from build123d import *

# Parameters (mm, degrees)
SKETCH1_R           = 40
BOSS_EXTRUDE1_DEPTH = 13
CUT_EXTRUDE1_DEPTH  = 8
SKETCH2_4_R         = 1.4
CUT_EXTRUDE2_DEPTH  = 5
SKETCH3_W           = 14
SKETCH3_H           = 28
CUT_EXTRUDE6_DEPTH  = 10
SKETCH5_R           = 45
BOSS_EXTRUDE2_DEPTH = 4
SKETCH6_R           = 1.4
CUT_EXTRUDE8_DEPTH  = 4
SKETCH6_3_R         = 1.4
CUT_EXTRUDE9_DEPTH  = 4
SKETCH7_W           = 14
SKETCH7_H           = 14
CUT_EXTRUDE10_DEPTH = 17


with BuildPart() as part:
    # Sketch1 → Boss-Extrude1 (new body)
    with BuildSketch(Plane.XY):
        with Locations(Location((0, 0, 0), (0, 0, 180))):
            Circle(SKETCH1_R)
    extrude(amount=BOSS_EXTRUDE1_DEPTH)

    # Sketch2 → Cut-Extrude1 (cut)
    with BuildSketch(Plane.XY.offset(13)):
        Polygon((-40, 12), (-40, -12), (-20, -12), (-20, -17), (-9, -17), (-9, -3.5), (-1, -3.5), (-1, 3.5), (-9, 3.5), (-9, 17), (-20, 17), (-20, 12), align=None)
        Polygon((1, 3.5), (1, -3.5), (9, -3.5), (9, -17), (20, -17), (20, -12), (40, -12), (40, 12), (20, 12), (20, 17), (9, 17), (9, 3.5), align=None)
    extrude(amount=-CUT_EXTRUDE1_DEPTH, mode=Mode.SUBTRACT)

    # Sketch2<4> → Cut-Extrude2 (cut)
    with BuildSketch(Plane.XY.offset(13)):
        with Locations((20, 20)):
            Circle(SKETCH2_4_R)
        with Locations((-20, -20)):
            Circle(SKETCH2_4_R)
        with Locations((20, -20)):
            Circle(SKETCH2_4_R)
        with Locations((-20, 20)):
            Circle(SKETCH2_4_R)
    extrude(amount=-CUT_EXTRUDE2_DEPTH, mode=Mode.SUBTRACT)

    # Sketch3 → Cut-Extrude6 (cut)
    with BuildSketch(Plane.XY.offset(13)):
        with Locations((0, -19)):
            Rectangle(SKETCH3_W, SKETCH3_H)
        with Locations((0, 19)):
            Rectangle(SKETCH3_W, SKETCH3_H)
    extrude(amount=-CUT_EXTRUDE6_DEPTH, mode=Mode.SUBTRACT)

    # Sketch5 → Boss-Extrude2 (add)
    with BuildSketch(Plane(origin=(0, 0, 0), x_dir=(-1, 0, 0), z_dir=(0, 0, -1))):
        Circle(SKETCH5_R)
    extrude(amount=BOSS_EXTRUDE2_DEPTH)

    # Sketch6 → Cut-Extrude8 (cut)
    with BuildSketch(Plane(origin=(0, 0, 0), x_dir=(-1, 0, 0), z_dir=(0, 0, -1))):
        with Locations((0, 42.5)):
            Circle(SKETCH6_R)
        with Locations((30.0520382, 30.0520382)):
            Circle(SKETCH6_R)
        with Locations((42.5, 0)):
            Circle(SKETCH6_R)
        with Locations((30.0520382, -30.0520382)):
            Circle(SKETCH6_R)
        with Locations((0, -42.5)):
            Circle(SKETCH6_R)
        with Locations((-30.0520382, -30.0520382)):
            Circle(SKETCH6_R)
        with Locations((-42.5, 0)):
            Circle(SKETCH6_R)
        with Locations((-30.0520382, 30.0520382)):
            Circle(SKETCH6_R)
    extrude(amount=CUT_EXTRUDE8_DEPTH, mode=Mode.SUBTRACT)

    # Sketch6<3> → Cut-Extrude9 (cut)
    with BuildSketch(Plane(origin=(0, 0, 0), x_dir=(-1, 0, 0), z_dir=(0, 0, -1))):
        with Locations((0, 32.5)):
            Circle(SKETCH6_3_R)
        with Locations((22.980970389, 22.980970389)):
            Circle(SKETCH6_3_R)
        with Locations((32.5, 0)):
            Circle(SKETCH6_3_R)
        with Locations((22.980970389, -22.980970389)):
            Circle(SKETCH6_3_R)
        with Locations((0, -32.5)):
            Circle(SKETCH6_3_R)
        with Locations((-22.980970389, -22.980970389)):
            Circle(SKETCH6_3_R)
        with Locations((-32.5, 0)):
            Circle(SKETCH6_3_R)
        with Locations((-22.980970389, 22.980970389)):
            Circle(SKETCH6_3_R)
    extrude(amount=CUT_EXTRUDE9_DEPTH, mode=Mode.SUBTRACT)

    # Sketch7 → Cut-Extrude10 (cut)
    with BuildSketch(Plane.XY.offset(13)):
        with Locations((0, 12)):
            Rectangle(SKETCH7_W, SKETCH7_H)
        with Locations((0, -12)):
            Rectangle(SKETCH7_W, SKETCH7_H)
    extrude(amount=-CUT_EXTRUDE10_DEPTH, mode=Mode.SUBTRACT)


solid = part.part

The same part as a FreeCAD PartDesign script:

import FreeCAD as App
import Part
import Sketcher
from FreeCAD import Vector


def add_polygon(sketch, points):
    """Adds a closed chain of lines whose ends are joined by coincident constraints."""
    first, n = sketch.GeometryCount, len(points)
    for a, b in zip(points, points[1:] + points[:1]):
        sketch.addGeometry(Part.LineSegment(App.Vector(*a, 0), App.Vector(*b, 0)), False)
    for i in range(n):
        sketch.addConstraint(Sketcher.Constraint("Coincident", first + i, 2, first + (i + 1) % n, 1))

doc = App.newDocument("Part")
body = doc.addObject("PartDesign::Body", "Body")

# Sketch on XY plane
sketch1 = doc.addObject("Sketcher::SketchObject", "Sketch")
body.addObject(sketch1)
sketch1.AttachmentSupport = (doc.XY_Plane, [""])
sketch1.MapMode = "FlatFace"
sketch1.addGeometry(Part.Circle(Vector(0, 0, 0), Vector(0, 0, 1), 40), False)
sketch1.addConstraint([
    Sketcher.Constraint("Coincident", 0, 3, -1, 1),
    Sketcher.Constraint("Diameter", 0, 80.0),
])
pad1 = doc.addObject("PartDesign::Pad", "Pad")
body.addObject(pad1)
pad1.Profile = sketch1
pad1.Length = 13

# Sketch on XY plane
sketch2 = doc.addObject("Sketcher::SketchObject", "Sketch001")
body.addObject(sketch2)
sketch2.AttachmentSupport = (doc.XY_Plane, [""])
sketch2.MapMode = "FlatFace"
sketch2.AttachmentOffset = App.Placement(Vector(0, 0, 13), App.Rotation())
add_polygon(sketch2, [(-40, 12), (-40, -12), (-20, -12), (-20, -17), (-9, -17), (-9, -4), (-1, -4), (-1, 4), (-9, 4), (-9, 17), (-20, 17), (-20, 12)])  # lines 0-11
add_polygon(sketch2, [(1, 4), (1, -4), (9, -4), (9, -17), (20, -17), (20, -12), (40, -12), (40, 12), (20, 12), (20, 17), (9, 17), (9, 4)])  # lines 12-23
sketch2.addConstraint([
    Sketcher.Constraint("Vertical", 0),
    Sketcher.Constraint("Horizontal", 1),
    Sketcher.Constraint("Vertical", 2),
    Sketcher.Constraint("Horizontal", 3),
    Sketcher.Constraint("Vertical", 4),
    Sketcher.Constraint("Horizontal", 5),
    Sketcher.Constraint("Vertical", 6),
    Sketcher.Constraint("Horizontal", 7),
    Sketcher.Constraint("Vertical", 8),
    Sketcher.Constraint("Horizontal", 9),
    Sketcher.Constraint("Vertical", 10),
    Sketcher.Constraint("Horizontal", 11),
    Sketcher.Constraint("Vertical", 12),
    Sketcher.Constraint("Horizontal", 13),
    Sketcher.Constraint("Vertical", 14),
    Sketcher.Constraint("Horizontal", 15),
    Sketcher.Constraint("Vertical", 16),
    Sketcher.Constraint("Horizontal", 17),
    Sketcher.Constraint("Vertical", 18),
    Sketcher.Constraint("Horizontal", 19),
    Sketcher.Constraint("Vertical", 20),
    Sketcher.Constraint("Horizontal", 21),
    Sketcher.Constraint("Vertical", 22),
    Sketcher.Constraint("Horizontal", 23),
    Sketcher.Constraint("Symmetric", 6, 2, 12, 2, -1, 1),
    Sketcher.Constraint("Symmetric", 8, 2, 14, 2, -1, 1),
    Sketcher.Constraint("Symmetric", 10, 2, 16, 2, -1, 1),
    Sketcher.Constraint("Symmetric", 0, 2, 18, 2, -1, 1),
    Sketcher.Constraint("Symmetric", 2, 2, 20, 2, -1, 1),
    Sketcher.Constraint("Symmetric", 4, 2, 22, 2, -1, 1),
    Sketcher.Constraint("Symmetric", 4, 2, 13, 2, -2),
    Sketcher.Constraint("Symmetric", 2, 2, 15, 2, -2),
    Sketcher.Constraint("Horizontal", 1, 2, 16, 2),
    Sketcher.Constraint("DistanceX", 1, 1, 1, 2, 20.0),
    Sketcher.Constraint("DistanceX", 3, 1, 3, 2, 11.0),
    Sketcher.Constraint("DistanceX", 5, 1, 5, 2, 8.0),
    Sketcher.Constraint("DistanceY", 0, 2, 0, 1, 24.0),
    Sketcher.Constraint("DistanceY", 2, 2, 2, 1, 5.0),
    Sketcher.Constraint("DistanceY", 6, 1, 6, 2, 7.0),
    Sketcher.Constraint("DistanceX", 0, 2, -1, 1, 40.0),
])
pocket1 = doc.addObject("PartDesign::Pocket", "Pocket")
body.addObject(pocket1)
pocket1.Profile = sketch2
pocket1.Length = 8

# Sketch on XY plane
sketch3 = doc.addObject("Sketcher::SketchObject", "Sketch002")
body.addObject(sketch3)
sketch3.AttachmentSupport = (doc.XY_Plane, [""])
sketch3.MapMode = "FlatFace"
sketch3.AttachmentOffset = App.Placement(Vector(0, 0, 13), App.Rotation())
sketch3.addGeometry([
    Part.Circle(Vector(20, 20, 0), Vector(0, 0, 1), 1.4),
    Part.Circle(Vector(-20, -20, 0), Vector(0, 0, 1), 1.4),
    Part.Circle(Vector(20, -20, 0), Vector(0, 0, 1), 1.4),
    Part.Circle(Vector(-20, 20, 0), Vector(0, 0, 1), 1.4),
], False)
sketch3.addConstraint([
    Sketcher.Constraint("Equal", 0, 1),
    Sketcher.Constraint("Equal", 1, 2),
    Sketcher.Constraint("Equal", 2, 3),
    Sketcher.Constraint("Symmetric", 0, 3, 1, 3, -1, 1),
    Sketcher.Constraint("Symmetric", 2, 3, 3, 3, -1, 1),
    Sketcher.Constraint("Symmetric", 1, 3, 2, 3, -2),
    Sketcher.Constraint("Diameter", 0, 2.8),
    Sketcher.Constraint("DistanceX", -1, 1, 0, 3, 20.0),
    Sketcher.Constraint("DistanceY", -1, 1, 0, 3, 20.0),
])
pocket2 = doc.addObject("PartDesign::Pocket", "Pocket001")
body.addObject(pocket2)
pocket2.Profile = sketch3
pocket2.Length = 5

# Sketch on XY plane
sketch4 = doc.addObject("Sketcher::SketchObject", "Sketch003")
body.addObject(sketch4)
sketch4.AttachmentSupport = (doc.XY_Plane, [""])
sketch4.MapMode = "FlatFace"
sketch4.AttachmentOffset = App.Placement(Vector(0, 0, 13), App.Rotation())
add_polygon(sketch4, [(-7, -5), (-7, -33), (7, -33), (7, -5)])  # lines 0-3
add_polygon(sketch4, [(-7, 33), (-7, 5), (7, 5), (7, 33)])  # lines 4-7
sketch4.addConstraint([
    Sketcher.Constraint("Vertical", 0),
    Sketcher.Constraint("Horizontal", 1),
    Sketcher.Constraint("Vertical", 2),
    Sketcher.Constraint("Horizontal", 3),
    Sketcher.Constraint("Vertical", 4),
    Sketcher.Constraint("Horizontal", 5),
    Sketcher.Constraint("Vertical", 6),
    Sketcher.Constraint("Horizontal", 7),
    Sketcher.Constraint("Symmetric", 2, 2, 4, 2, -1, 1),
    Sketcher.Constraint("Symmetric", 0, 2, 6, 2, -1, 1),
    Sketcher.Constraint("Vertical", 3, 2, 4, 2),
    Sketcher.Constraint("DistanceX", 1, 1, 1, 2, 14.0),
    Sketcher.Constraint("DistanceY", 0, 2, 0, 1, 28.0),
    Sketcher.Constraint("DistanceY", 0, 2, -1, 1, 33.0),
])
pocket3 = doc.addObject("PartDesign::Pocket", "Pocket002")
body.addObject(pocket3)
pocket3.Profile = sketch4
pocket3.Length = 10

# Sketch on XY plane
sketch5 = doc.addObject("Sketcher::SketchObject", "Sketch004")
body.addObject(sketch5)
sketch5.AttachmentSupport = (doc.XY_Plane, [""])
sketch5.MapMode = "FlatFace"
sketch5.addGeometry(Part.Circle(Vector(0, 0, 0), Vector(0, 0, 1), 45), False)
sketch5.addConstraint([
    Sketcher.Constraint("Coincident", 0, 3, -1, 1),
    Sketcher.Constraint("Diameter", 0, 90.0),
])
pad2 = doc.addObject("PartDesign::Pad", "Pad001")
body.addObject(pad2)
pad2.Profile = sketch5
pad2.Length = 4
pad2.Reversed = True

# Sketch on XY plane
sketch6 = doc.addObject("Sketcher::SketchObject", "Sketch005")
body.addObject(sketch6)
sketch6.AttachmentSupport = (doc.XY_Plane, [""])
sketch6.MapMode = "FlatFace"
sketch6.addGeometry([
    Part.Circle(Vector(0, 42.5, 0), Vector(0, 0, 1), 1.4),  # 0
    Part.Circle(Vector(-30.1, 30.1, 0), Vector(0, 0, 1), 1.4),  # 1
    Part.Circle(Vector(-42.5, 0, 0), Vector(0, 0, 1), 1.4),  # 2
    Part.Circle(Vector(-30.1, -30.1, 0), Vector(0, 0, 1), 1.4),  # 3
    Part.Circle(Vector(0, -42.5, 0), Vector(0, 0, 1), 1.4),  # 4
    Part.Circle(Vector(30.1, -30.1, 0), Vector(0, 0, 1), 1.4),  # 5
    Part.Circle(Vector(42.5, 0, 0), Vector(0, 0, 1), 1.4),  # 6
    Part.Circle(Vector(30.1, 30.1, 0), Vector(0, 0, 1), 1.4),  # 7
], False)
sketch6.addConstraint([
    Sketcher.Constraint("Equal", 0, 1),
    Sketcher.Constraint("Equal", 1, 2),
    Sketcher.Constraint("Equal", 2, 3),
    Sketcher.Constraint("Equal", 3, 4),
    Sketcher.Constraint("Equal", 4, 5),
    Sketcher.Constraint("Equal", 5, 6),
    Sketcher.Constraint("Equal", 6, 7),
    Sketcher.Constraint("Symmetric", 0, 3, 4, 3, -1, 1),
    Sketcher.Constraint("Symmetric", 1, 3, 5, 3, -1, 1),
    Sketcher.Constraint("Symmetric", 2, 3, 6, 3, -1, 1),
    Sketcher.Constraint("Symmetric", 3, 3, 7, 3, -1, 1),
    Sketcher.Constraint("Symmetric", 3, 3, 5, 3, -2),
    Sketcher.Constraint("PointOnObject", 0, 3, -2),
    Sketcher.Constraint("PointOnObject", 2, 3, -1),
    Sketcher.Constraint("Diameter", 0, 2.8),
    Sketcher.Constraint("DistanceY", 4, 3, 0, 3, 85.0),
    Sketcher.Constraint("DistanceX", 2, 3, -1, 1, 42.5),
    Sketcher.Constraint("DistanceX", 1, 3, -1, 1, 30.052038),
    Sketcher.Constraint("DistanceY", -1, 1, 1, 3, 30.052038),
])
pocket4 = doc.addObject("PartDesign::Pocket", "Pocket003")
body.addObject(pocket4)
pocket4.Profile = sketch6
pocket4.Length = 4

# Sketch on XY plane
sketch7 = doc.addObject("Sketcher::SketchObject", "Sketch006")
body.addObject(sketch7)
sketch7.AttachmentSupport = (doc.XY_Plane, [""])
sketch7.MapMode = "FlatFace"
sketch7.addGeometry([
    Part.Circle(Vector(0, 32.5, 0), Vector(0, 0, 1), 1.4),  # 0
    Part.Circle(Vector(-23, 23, 0), Vector(0, 0, 1), 1.4),  # 1
    Part.Circle(Vector(-32.5, 0, 0), Vector(0, 0, 1), 1.4),  # 2
    Part.Circle(Vector(-23, -23, 0), Vector(0, 0, 1), 1.4),  # 3
    Part.Circle(Vector(0, -32.5, 0), Vector(0, 0, 1), 1.4),  # 4
    Part.Circle(Vector(23, -23, 0), Vector(0, 0, 1), 1.4),  # 5
    Part.Circle(Vector(32.5, 0, 0), Vector(0, 0, 1), 1.4),  # 6
    Part.Circle(Vector(23, 23, 0), Vector(0, 0, 1), 1.4),  # 7
], False)
sketch7.addConstraint([
    Sketcher.Constraint("Equal", 0, 1),
    Sketcher.Constraint("Equal", 1, 2),
    Sketcher.Constraint("Equal", 2, 3),
    Sketcher.Constraint("Equal", 3, 4),
    Sketcher.Constraint("Equal", 4, 5),
    Sketcher.Constraint("Equal", 5, 6),
    Sketcher.Constraint("Equal", 6, 7),
    Sketcher.Constraint("Symmetric", 0, 3, 4, 3, -1, 1),
    Sketcher.Constraint("Symmetric", 1, 3, 5, 3, -1, 1),
    Sketcher.Constraint("Symmetric", 2, 3, 6, 3, -1, 1),
    Sketcher.Constraint("Symmetric", 3, 3, 7, 3, -1, 1),
    Sketcher.Constraint("Symmetric", 3, 3, 5, 3, -2),
    Sketcher.Constraint("PointOnObject", 0, 3, -2),
    Sketcher.Constraint("PointOnObject", 2, 3, -1),
    Sketcher.Constraint("Diameter", 0, 2.8),
    Sketcher.Constraint("DistanceY", 4, 3, 0, 3, 65.0),
    Sketcher.Constraint("DistanceX", 2, 3, -1, 1, 32.5),
    Sketcher.Constraint("DistanceX", 1, 3, -1, 1, 22.98097),
    Sketcher.Constraint("DistanceY", -1, 1, 1, 3, 22.98097),
])
pocket5 = doc.addObject("PartDesign::Pocket", "Pocket004")
body.addObject(pocket5)
pocket5.Profile = sketch7
pocket5.Length = 4

# Sketch on XY plane
sketch8 = doc.addObject("Sketcher::SketchObject", "Sketch007")
body.addObject(sketch8)
sketch8.AttachmentSupport = (doc.XY_Plane, [""])
sketch8.MapMode = "FlatFace"
sketch8.AttachmentOffset = App.Placement(Vector(0, 0, 13), App.Rotation())
add_polygon(sketch8, [(-7, 19), (-7, 5), (7, 5), (7, 19)])  # lines 0-3
add_polygon(sketch8, [(-7, -5), (-7, -19), (7, -19), (7, -5)])  # lines 4-7
sketch8.addConstraint([
    Sketcher.Constraint("Vertical", 0),
    Sketcher.Constraint("Horizontal", 1),
    Sketcher.Constraint("Vertical", 2),
    Sketcher.Constraint("Horizontal", 3),
    Sketcher.Constraint("Vertical", 4),
    Sketcher.Constraint("Horizontal", 5),
    Sketcher.Constraint("Vertical", 6),
    Sketcher.Constraint("Horizontal", 7),
    Sketcher.Constraint("Symmetric", 2, 2, 4, 2, -1, 1),
    Sketcher.Constraint("Symmetric", 0, 2, 6, 2, -1, 1),
    Sketcher.Constraint("Vertical", 3, 2, 4, 2),
    Sketcher.Constraint("Equal", 7, 0),
    Sketcher.Constraint("DistanceX", 1, 1, 1, 2, 14.0),
    Sketcher.Constraint("DistanceY", -1, 1, 0, 2, 5.0),
])
pocket6 = doc.addObject("PartDesign::Pocket", "Pocket005")
body.addObject(pocket6)
pocket6.Profile = sketch8
pocket6.Length = 17

doc.recompute()
